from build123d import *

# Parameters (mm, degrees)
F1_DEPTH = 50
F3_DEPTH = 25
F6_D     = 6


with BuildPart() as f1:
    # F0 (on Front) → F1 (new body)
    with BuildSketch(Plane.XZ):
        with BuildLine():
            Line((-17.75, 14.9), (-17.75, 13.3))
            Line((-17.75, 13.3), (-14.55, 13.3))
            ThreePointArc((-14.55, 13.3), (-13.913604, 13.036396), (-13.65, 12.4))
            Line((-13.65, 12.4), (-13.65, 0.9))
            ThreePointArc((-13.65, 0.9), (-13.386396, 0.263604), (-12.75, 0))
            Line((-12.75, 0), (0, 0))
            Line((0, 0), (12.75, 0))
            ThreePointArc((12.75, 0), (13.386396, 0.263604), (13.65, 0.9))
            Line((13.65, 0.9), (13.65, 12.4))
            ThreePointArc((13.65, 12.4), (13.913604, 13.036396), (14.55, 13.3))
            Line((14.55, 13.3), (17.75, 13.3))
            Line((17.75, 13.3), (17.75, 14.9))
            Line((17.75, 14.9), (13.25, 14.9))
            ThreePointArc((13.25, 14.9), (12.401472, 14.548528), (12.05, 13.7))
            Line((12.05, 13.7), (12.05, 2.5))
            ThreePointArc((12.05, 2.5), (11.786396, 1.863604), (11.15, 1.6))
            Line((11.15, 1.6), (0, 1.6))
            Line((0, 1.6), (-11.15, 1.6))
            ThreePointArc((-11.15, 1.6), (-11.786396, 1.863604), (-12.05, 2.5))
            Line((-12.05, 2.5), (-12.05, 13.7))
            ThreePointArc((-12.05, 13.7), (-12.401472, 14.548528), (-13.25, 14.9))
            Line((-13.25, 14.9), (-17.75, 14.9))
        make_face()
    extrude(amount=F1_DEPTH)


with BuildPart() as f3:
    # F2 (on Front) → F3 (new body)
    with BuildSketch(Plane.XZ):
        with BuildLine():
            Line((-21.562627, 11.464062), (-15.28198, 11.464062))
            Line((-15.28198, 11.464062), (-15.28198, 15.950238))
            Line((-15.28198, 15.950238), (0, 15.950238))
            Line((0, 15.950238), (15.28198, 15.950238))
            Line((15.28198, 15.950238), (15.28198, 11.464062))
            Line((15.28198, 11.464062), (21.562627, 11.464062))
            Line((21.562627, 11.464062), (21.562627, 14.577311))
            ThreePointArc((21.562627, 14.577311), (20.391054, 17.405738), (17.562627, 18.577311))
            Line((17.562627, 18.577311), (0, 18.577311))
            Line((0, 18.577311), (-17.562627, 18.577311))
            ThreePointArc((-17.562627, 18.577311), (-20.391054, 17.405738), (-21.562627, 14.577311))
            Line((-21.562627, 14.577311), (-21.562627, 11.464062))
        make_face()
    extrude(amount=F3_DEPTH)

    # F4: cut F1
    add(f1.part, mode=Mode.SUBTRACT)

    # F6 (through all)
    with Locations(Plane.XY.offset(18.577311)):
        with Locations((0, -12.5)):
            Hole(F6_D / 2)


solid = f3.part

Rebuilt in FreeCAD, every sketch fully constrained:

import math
import FreeCAD as App
import Part
import Sketcher

V = App.Vector

doc = App.newDocument("Part")
body = doc.addObject("PartDesign::Body", "Body")

# Sketch on XZ plane
sketch1 = body.newObject("Sketcher::SketchObject", "Sketch")
sketch1.AttachmentSupport = (doc.getObject("XZ_Plane"), [""])
sketch1.MapMode = "FlatFace"
sketch1.addGeometry(Part.LineSegment(V(-17.75, 14.9, 0), V(-17.75, 13.3, 0)), False)
sketch1.addGeometry(Part.LineSegment(V(-17.75, 13.3, 0), V(-14.55, 13.3, 0)), False)
sketch1.addGeometry(Part.ArcOfCircle(Part.Circle(V(-14.55, 12.4, 0), V(0, 0, 1), 0.9), math.radians(0.000022), math.radians(89.999978)), False)
sketch1.addGeometry(Part.LineSegment(V(-13.65, 12.4, 0), V(-13.65, 0.9, 0)), False)
sketch1.addGeometry(Part.ArcOfCircle(Part.Circle(V(-12.75, 0.9, 0), V(0, 0, 1), 0.9), math.radians(-179.999978), math.radians(-90.000022)), False)
sketch1.addGeometry(Part.LineSegment(V(-12.75, 0, 0), V(12.75, 0, 0)), False)
sketch1.addGeometry(Part.ArcOfCircle(Part.Circle(V(12.75, 0.9, 0), V(0, 0, 1), 0.9), math.radians(-89.999978), math.radians(-0.000022)), False)
sketch1.addGeometry(Part.LineSegment(V(13.65, 0.9, 0), V(13.65, 12.4, 0)), False)
sketch1.addGeometry(Part.ArcOfCircle(Part.Circle(V(14.55, 12.4, 0), V(0, 0, 1), 0.9), math.radians(90.000022), math.radians(179.999978)), False)
sketch1.addGeometry(Part.LineSegment(V(14.55, 13.3, 0), V(17.75, 13.3, 0)), False)
sketch1.addGeometry(Part.LineSegment(V(17.75, 13.3, 0), V(17.75, 14.9, 0)), False)
sketch1.addGeometry(Part.LineSegment(V(17.75, 14.9, 0), V(13.25, 14.9, 0)), False)
sketch1.addGeometry(Part.ArcOfCircle(Part.Circle(V(13.25, 13.7, 0), V(0, 0, 1), 1.2), math.radians(90.000022), math.radians(179.999978)), False)
sketch1.addGeometry(Part.LineSegment(V(12.05, 13.7, 0), V(12.05, 2.5, 0)), False)
sketch1.addGeometry(Part.ArcOfCircle(Part.Circle(V(11.15, 2.5, 0), V(0, 0, 1), 0.9), math.radians(-89.999978), math.radians(-0.000022)), False)
sketch1.addGeometry(Part.LineSegment(V(11.15, 1.6, 0), V(-11.15, 1.6, 0)), False)
sketch1.addGeometry(Part.ArcOfCircle(Part.Circle(V(-11.15, 2.5, 0), V(0, 0, 1), 0.9), math.radians(-179.999978), math.radians(-90.000022)), False)
sketch1.addGeometry(Part.LineSegment(V(-12.05, 2.5, 0), V(-12.05, 13.7, 0)), False)
sketch1.addGeometry(Part.ArcOfCircle(Part.Circle(V(-13.25, 13.7, 0), V(0, 0, 1), 1.2), math.radians(0.000022), math.radians(89.999978)), False)
sketch1.addGeometry(Part.LineSegment(V(-13.25, 14.9, 0), V(-17.75, 14.9, 0)), False)
sketch1.addConstraint(Sketcher.Constraint("Coincident", 0, 2, 1, 1))
sketch1.addConstraint(Sketcher.Constraint("Tangent", 1, 2, 2, 2))
sketch1.addConstraint(Sketcher.Constraint("Tangent", 2, 1, 3, 1))
sketch1.addConstraint(Sketcher.Constraint("Tangent", 3, 2, 4, 1))
sketch1.addConstraint(Sketcher.Constraint("Tangent", 4, 2, 5, 1))
sketch1.addConstraint(Sketcher.Constraint("Tangent", 5, 2, 6, 1))
sketch1.addConstraint(Sketcher.Constraint("Tangent", 6, 2, 7, 1))
sketch1.addConstraint(Sketcher.Constraint("Tangent", 7, 2, 8, 2))
sketch1.addConstraint(Sketcher.Constraint("Tangent", 8, 1, 9, 1))
sketch1.addConstraint(Sketcher.Constraint("Coincident", 9, 2, 10, 1))
sketch1.addConstraint(Sketcher.Constraint("Coincident", 10, 2, 11, 1))
sketch1.addConstraint(Sketcher.Constraint("Tangent", 11, 2, 12, 1))
sketch1.addConstraint(Sketcher.Constraint("Tangent", 12, 2, 13, 1))
sketch1.addConstraint(Sketcher.Constraint("Tangent", 13, 2, 14, 2))
sketch1.addConstraint(Sketcher.Constraint("Tangent", 14, 1, 15, 1))
sketch1.addConstraint(Sketcher.Constraint("Tangent", 15, 2, 16, 2))
sketch1.addConstraint(Sketcher.Constraint("Tangent", 16, 1, 17, 1))
sketch1.addConstraint(Sketcher.Constraint("Tangent", 17, 2, 18, 1))
sketch1.addConstraint(Sketcher.Constraint("Tangent", 18, 2, 19, 1))
sketch1.addConstraint(Sketcher.Constraint("Coincident", 19, 2, 0, 1))
sketch1.addConstraint(Sketcher.Constraint("Vertical", 0))
sketch1.addConstraint(Sketcher.Constraint("Horizontal", 1))
sketch1.addConstraint(Sketcher.Constraint("Vertical", 3))
sketch1.addConstraint(Sketcher.Constraint("Horizontal", 5))
sketch1.addConstraint(Sketcher.Constraint("Vertical", 7))
sketch1.addConstraint(Sketcher.Constraint("Horizontal", 9))
sketch1.addConstraint(Sketcher.Constraint("Vertical", 10))
sketch1.addConstraint(Sketcher.Constraint("Horizontal", 11))
sketch1.addConstraint(Sketcher.Constraint("Vertical", 13))
sketch1.addConstraint(Sketcher.Constraint("Horizontal", 15))
sketch1.addConstraint(Sketcher.Constraint("Vertical", 17))
sketch1.addConstraint(Sketcher.Constraint("Horizontal", 19))
sketch1.addConstraint(Sketcher.Constraint("Equal", 2, 4))
sketch1.addConstraint(Sketcher.Constraint("Equal", 4, 6))
sketch1.addConstraint(Sketcher.Constraint("Equal", 6, 8))
sketch1.addConstraint(Sketcher.Constraint("Equal", 8, 14))
sketch1.addConstraint(Sketcher.Constraint("Equal", 14, 16))
sketch1.addConstraint(Sketcher.Constraint("Equal", 12, 18))
sketch1.addConstraint(Sketcher.Constraint("Symmetric", 4, 2, 5, 2, -1, 1))
sketch1.addConstraint(Sketcher.Constraint("Symmetric", 12, 3, 18, 3, -2))
sketch1.addConstraint(Sketcher.Constraint("Symmetric", 0, 2, 9, 2, -2))
sketch1.addConstraint(Sketcher.Constraint("Radius", 2, 0.9))
sketch1.addConstraint(Sketcher.Constraint("Radius", 12, 1.2))
sketch1.addConstraint(Sketcher.Constraint("DistanceX", 1, 1, 1, 2, 3.2))
sketch1.addConstraint(Sketcher.Constraint("DistanceX", 5, 1, 5, 2, 25.5))
sketch1.addConstraint(Sketcher.Constraint("DistanceX", 11, 2, 11, 1, 4.5))
sketch1.addConstraint(Sketcher.Constraint("DistanceY", 0, 2, 0, 1, 1.6))
sketch1.addConstraint(Sketcher.Constraint("DistanceY", 3, 2, 3, 1, 11.5))
sketch1.addConstraint(Sketcher.Constraint("DistanceY", 13, 2, 13, 1, 11.2))
pad1 = body.newObject("PartDesign::Pad", "Pad")
pad1.Profile = sketch1
pad1.Length = 50
body2 = doc.addObject("PartDesign::Body", "Body001")

# Sketch on XZ plane
sketch2 = body2.newObject("Sketcher::SketchObject", "Sketch001")
sketch2.AttachmentSupport = (doc.getObject("XZ_Plane001"), [""])
sketch2.MapMode = "FlatFace"
sketch2.addGeometry(Part.LineSegment(V(-21.562627, 11.464062, 0), V(-15.28198, 11.464062, 0)), False)
sketch2.addGeometry(Part.LineSegment(V(-15.28198, 11.464062, 0), V(-15.28198, 15.950238, 0)), False)
sketch2.addGeometry(Part.LineSegment(V(-15.28198, 15.950238, 0), V(15.28198, 15.950238, 0)), False)
sketch2.addGeometry(Part.LineSegment(V(15.28198, 15.950238, 0), V(15.28198, 11.464062, 0)), False)
sketch2.addGeometry(Part.LineSegment(V(15.28198, 11.464062, 0), V(21.562627, 11.464062, 0)), False)
sketch2.addGeometry(Part.LineSegment(V(21.562627, 11.464062, 0), V(21.562627, 14.577311, 0)), False)
sketch2.addGeometry(Part.ArcOfCircle(Part.Circle(V(17.562627, 14.577311, 0), V(0, 0, 1), 4), math.radians(0.000006), math.radians(89.999994)), False)
sketch2.addGeometry(Part.LineSegment(V(17.562627, 18.577311, 0), V(-17.562627, 18.577311, 0)), False)
sketch2.addGeometry(Part.ArcOfCircle(Part.Circle(V(-17.562627, 14.577311, 0), V(0, 0, 1), 4), math.radians(90.000006), math.radians(179.999994)), False)
sketch2.addGeometry(Part.LineSegment(V(-21.562627, 14.577311, 0), V(-21.562627, 11.464062, 0)), False)
sketch2.addConstraint(Sketcher.Constraint("Coincident", 0, 2, 1, 1))
sketch2.addConstraint(Sketcher.Constraint("Coincident", 1, 2, 2, 1))
sketch2.addConstraint(Sketcher.Constraint("Coincident", 2, 2, 3, 1))
sketch2.addConstraint(Sketcher.Constraint("Coincident", 3, 2, 4, 1))
sketch2.addConstraint(Sketcher.Constraint("Coincident", 4, 2, 5, 1))
sketch2.addConstraint(Sketcher.Constraint("Tangent", 5, 2, 6, 1))
sketch2.addConstraint(Sketcher.Constraint("Tangent", 6, 2, 7, 1))
sketch2.addConstraint(Sketcher.Constraint("Tangent", 7, 2, 8, 1))
sketch2.addConstraint(Sketcher.Constraint("Tangent", 8, 2, 9, 1))
sketch2.addConstraint(Sketcher.Constraint("Coincident", 9, 2, 0, 1))
sketch2.addConstraint(Sketcher.Constraint("Horizontal", 0))
sketch2.addConstraint(Sketcher.Constraint("Vertical", 1))
sketch2.addConstraint(Sketcher.Constraint("Horizontal", 2))
sketch2.addConstraint(Sketcher.Constraint("Vertical", 3))
sketch2.addConstraint(Sketcher.Constraint("Horizontal", 4))
sketch2.addConstraint(Sketcher.Constraint("Vertical", 5))
sketch2.addConstraint(Sketcher.Constraint("Horizontal", 7))
sketch2.addConstraint(Sketcher.Constraint("Vertical", 9))
sketch2.addConstraint(Sketcher.Constraint("Equal", 6, 8))
sketch2.addConstraint(Sketcher.Constraint("Symmetric", 0, 2, 3, 2, -2))
sketch2.addConstraint(Sketcher.Constraint("Equal", 0, 4))
sketch2.addConstraint(Sketcher.Constraint("Radius", 6, 4.0))
sketch2.addConstraint(Sketcher.Constraint("DistanceX", 2, 1, 2, 2, 30.56396))
sketch2.addConstraint(Sketcher.Constraint("DistanceY", 5, 1, 5, 2, 3.113249))
sketch2.addConstraint(Sketcher.Constraint("DistanceX", 0, 1, 0, 2, 6.280647))
sketch2.addConstraint(Sketcher.Constraint("DistanceY", 1, 1, 1, 2, 4.486176))
sketch2.addConstraint(Sketcher.Constraint("DistanceY", -1, 1, 6, 3, 14.577311))
pad2 = body2.newObject("PartDesign::Pad", "Pad001")
pad2.Profile = sketch2
pad2.Length = 25
doc.recompute()

boolean = body2.newObject("PartDesign::Boolean", "Boolean")
boolean.Type = "Cut"
boolean.addObjects([body])

# Sketch on XY plane
sketch3 = body2.newObject("Sketcher::SketchObject", "Sketch002")
sketch3.AttachmentSupport = (doc.getObject("XY_Plane001"), [""])
sketch3.MapMode = "FlatFace"
sketch3.AttachmentOffset = App.Placement(V(0, 0, 18.577311), App.Rotation())
sketch3.addGeometry(Part.Circle(V(0, -12.5, 0), V(0, 0, 1), 3), False)
sketch3.addConstraint(Sketcher.Constraint("PointOnObject", 0, 3, -2))
sketch3.addConstraint(Sketcher.Constraint("Diameter", 0, 6.0))
sketch3.addConstraint(Sketcher.Constraint("DistanceY", 0, 3, -1, 1, 12.5))
doc.recompute()
hole = body2.newObject("PartDesign::Hole", "Hole")
hole.Profile = sketch3
hole.ThreadType = "None"
hole.Diameter = 6
hole.DepthType = "ThroughAll"

doc.recompute()
